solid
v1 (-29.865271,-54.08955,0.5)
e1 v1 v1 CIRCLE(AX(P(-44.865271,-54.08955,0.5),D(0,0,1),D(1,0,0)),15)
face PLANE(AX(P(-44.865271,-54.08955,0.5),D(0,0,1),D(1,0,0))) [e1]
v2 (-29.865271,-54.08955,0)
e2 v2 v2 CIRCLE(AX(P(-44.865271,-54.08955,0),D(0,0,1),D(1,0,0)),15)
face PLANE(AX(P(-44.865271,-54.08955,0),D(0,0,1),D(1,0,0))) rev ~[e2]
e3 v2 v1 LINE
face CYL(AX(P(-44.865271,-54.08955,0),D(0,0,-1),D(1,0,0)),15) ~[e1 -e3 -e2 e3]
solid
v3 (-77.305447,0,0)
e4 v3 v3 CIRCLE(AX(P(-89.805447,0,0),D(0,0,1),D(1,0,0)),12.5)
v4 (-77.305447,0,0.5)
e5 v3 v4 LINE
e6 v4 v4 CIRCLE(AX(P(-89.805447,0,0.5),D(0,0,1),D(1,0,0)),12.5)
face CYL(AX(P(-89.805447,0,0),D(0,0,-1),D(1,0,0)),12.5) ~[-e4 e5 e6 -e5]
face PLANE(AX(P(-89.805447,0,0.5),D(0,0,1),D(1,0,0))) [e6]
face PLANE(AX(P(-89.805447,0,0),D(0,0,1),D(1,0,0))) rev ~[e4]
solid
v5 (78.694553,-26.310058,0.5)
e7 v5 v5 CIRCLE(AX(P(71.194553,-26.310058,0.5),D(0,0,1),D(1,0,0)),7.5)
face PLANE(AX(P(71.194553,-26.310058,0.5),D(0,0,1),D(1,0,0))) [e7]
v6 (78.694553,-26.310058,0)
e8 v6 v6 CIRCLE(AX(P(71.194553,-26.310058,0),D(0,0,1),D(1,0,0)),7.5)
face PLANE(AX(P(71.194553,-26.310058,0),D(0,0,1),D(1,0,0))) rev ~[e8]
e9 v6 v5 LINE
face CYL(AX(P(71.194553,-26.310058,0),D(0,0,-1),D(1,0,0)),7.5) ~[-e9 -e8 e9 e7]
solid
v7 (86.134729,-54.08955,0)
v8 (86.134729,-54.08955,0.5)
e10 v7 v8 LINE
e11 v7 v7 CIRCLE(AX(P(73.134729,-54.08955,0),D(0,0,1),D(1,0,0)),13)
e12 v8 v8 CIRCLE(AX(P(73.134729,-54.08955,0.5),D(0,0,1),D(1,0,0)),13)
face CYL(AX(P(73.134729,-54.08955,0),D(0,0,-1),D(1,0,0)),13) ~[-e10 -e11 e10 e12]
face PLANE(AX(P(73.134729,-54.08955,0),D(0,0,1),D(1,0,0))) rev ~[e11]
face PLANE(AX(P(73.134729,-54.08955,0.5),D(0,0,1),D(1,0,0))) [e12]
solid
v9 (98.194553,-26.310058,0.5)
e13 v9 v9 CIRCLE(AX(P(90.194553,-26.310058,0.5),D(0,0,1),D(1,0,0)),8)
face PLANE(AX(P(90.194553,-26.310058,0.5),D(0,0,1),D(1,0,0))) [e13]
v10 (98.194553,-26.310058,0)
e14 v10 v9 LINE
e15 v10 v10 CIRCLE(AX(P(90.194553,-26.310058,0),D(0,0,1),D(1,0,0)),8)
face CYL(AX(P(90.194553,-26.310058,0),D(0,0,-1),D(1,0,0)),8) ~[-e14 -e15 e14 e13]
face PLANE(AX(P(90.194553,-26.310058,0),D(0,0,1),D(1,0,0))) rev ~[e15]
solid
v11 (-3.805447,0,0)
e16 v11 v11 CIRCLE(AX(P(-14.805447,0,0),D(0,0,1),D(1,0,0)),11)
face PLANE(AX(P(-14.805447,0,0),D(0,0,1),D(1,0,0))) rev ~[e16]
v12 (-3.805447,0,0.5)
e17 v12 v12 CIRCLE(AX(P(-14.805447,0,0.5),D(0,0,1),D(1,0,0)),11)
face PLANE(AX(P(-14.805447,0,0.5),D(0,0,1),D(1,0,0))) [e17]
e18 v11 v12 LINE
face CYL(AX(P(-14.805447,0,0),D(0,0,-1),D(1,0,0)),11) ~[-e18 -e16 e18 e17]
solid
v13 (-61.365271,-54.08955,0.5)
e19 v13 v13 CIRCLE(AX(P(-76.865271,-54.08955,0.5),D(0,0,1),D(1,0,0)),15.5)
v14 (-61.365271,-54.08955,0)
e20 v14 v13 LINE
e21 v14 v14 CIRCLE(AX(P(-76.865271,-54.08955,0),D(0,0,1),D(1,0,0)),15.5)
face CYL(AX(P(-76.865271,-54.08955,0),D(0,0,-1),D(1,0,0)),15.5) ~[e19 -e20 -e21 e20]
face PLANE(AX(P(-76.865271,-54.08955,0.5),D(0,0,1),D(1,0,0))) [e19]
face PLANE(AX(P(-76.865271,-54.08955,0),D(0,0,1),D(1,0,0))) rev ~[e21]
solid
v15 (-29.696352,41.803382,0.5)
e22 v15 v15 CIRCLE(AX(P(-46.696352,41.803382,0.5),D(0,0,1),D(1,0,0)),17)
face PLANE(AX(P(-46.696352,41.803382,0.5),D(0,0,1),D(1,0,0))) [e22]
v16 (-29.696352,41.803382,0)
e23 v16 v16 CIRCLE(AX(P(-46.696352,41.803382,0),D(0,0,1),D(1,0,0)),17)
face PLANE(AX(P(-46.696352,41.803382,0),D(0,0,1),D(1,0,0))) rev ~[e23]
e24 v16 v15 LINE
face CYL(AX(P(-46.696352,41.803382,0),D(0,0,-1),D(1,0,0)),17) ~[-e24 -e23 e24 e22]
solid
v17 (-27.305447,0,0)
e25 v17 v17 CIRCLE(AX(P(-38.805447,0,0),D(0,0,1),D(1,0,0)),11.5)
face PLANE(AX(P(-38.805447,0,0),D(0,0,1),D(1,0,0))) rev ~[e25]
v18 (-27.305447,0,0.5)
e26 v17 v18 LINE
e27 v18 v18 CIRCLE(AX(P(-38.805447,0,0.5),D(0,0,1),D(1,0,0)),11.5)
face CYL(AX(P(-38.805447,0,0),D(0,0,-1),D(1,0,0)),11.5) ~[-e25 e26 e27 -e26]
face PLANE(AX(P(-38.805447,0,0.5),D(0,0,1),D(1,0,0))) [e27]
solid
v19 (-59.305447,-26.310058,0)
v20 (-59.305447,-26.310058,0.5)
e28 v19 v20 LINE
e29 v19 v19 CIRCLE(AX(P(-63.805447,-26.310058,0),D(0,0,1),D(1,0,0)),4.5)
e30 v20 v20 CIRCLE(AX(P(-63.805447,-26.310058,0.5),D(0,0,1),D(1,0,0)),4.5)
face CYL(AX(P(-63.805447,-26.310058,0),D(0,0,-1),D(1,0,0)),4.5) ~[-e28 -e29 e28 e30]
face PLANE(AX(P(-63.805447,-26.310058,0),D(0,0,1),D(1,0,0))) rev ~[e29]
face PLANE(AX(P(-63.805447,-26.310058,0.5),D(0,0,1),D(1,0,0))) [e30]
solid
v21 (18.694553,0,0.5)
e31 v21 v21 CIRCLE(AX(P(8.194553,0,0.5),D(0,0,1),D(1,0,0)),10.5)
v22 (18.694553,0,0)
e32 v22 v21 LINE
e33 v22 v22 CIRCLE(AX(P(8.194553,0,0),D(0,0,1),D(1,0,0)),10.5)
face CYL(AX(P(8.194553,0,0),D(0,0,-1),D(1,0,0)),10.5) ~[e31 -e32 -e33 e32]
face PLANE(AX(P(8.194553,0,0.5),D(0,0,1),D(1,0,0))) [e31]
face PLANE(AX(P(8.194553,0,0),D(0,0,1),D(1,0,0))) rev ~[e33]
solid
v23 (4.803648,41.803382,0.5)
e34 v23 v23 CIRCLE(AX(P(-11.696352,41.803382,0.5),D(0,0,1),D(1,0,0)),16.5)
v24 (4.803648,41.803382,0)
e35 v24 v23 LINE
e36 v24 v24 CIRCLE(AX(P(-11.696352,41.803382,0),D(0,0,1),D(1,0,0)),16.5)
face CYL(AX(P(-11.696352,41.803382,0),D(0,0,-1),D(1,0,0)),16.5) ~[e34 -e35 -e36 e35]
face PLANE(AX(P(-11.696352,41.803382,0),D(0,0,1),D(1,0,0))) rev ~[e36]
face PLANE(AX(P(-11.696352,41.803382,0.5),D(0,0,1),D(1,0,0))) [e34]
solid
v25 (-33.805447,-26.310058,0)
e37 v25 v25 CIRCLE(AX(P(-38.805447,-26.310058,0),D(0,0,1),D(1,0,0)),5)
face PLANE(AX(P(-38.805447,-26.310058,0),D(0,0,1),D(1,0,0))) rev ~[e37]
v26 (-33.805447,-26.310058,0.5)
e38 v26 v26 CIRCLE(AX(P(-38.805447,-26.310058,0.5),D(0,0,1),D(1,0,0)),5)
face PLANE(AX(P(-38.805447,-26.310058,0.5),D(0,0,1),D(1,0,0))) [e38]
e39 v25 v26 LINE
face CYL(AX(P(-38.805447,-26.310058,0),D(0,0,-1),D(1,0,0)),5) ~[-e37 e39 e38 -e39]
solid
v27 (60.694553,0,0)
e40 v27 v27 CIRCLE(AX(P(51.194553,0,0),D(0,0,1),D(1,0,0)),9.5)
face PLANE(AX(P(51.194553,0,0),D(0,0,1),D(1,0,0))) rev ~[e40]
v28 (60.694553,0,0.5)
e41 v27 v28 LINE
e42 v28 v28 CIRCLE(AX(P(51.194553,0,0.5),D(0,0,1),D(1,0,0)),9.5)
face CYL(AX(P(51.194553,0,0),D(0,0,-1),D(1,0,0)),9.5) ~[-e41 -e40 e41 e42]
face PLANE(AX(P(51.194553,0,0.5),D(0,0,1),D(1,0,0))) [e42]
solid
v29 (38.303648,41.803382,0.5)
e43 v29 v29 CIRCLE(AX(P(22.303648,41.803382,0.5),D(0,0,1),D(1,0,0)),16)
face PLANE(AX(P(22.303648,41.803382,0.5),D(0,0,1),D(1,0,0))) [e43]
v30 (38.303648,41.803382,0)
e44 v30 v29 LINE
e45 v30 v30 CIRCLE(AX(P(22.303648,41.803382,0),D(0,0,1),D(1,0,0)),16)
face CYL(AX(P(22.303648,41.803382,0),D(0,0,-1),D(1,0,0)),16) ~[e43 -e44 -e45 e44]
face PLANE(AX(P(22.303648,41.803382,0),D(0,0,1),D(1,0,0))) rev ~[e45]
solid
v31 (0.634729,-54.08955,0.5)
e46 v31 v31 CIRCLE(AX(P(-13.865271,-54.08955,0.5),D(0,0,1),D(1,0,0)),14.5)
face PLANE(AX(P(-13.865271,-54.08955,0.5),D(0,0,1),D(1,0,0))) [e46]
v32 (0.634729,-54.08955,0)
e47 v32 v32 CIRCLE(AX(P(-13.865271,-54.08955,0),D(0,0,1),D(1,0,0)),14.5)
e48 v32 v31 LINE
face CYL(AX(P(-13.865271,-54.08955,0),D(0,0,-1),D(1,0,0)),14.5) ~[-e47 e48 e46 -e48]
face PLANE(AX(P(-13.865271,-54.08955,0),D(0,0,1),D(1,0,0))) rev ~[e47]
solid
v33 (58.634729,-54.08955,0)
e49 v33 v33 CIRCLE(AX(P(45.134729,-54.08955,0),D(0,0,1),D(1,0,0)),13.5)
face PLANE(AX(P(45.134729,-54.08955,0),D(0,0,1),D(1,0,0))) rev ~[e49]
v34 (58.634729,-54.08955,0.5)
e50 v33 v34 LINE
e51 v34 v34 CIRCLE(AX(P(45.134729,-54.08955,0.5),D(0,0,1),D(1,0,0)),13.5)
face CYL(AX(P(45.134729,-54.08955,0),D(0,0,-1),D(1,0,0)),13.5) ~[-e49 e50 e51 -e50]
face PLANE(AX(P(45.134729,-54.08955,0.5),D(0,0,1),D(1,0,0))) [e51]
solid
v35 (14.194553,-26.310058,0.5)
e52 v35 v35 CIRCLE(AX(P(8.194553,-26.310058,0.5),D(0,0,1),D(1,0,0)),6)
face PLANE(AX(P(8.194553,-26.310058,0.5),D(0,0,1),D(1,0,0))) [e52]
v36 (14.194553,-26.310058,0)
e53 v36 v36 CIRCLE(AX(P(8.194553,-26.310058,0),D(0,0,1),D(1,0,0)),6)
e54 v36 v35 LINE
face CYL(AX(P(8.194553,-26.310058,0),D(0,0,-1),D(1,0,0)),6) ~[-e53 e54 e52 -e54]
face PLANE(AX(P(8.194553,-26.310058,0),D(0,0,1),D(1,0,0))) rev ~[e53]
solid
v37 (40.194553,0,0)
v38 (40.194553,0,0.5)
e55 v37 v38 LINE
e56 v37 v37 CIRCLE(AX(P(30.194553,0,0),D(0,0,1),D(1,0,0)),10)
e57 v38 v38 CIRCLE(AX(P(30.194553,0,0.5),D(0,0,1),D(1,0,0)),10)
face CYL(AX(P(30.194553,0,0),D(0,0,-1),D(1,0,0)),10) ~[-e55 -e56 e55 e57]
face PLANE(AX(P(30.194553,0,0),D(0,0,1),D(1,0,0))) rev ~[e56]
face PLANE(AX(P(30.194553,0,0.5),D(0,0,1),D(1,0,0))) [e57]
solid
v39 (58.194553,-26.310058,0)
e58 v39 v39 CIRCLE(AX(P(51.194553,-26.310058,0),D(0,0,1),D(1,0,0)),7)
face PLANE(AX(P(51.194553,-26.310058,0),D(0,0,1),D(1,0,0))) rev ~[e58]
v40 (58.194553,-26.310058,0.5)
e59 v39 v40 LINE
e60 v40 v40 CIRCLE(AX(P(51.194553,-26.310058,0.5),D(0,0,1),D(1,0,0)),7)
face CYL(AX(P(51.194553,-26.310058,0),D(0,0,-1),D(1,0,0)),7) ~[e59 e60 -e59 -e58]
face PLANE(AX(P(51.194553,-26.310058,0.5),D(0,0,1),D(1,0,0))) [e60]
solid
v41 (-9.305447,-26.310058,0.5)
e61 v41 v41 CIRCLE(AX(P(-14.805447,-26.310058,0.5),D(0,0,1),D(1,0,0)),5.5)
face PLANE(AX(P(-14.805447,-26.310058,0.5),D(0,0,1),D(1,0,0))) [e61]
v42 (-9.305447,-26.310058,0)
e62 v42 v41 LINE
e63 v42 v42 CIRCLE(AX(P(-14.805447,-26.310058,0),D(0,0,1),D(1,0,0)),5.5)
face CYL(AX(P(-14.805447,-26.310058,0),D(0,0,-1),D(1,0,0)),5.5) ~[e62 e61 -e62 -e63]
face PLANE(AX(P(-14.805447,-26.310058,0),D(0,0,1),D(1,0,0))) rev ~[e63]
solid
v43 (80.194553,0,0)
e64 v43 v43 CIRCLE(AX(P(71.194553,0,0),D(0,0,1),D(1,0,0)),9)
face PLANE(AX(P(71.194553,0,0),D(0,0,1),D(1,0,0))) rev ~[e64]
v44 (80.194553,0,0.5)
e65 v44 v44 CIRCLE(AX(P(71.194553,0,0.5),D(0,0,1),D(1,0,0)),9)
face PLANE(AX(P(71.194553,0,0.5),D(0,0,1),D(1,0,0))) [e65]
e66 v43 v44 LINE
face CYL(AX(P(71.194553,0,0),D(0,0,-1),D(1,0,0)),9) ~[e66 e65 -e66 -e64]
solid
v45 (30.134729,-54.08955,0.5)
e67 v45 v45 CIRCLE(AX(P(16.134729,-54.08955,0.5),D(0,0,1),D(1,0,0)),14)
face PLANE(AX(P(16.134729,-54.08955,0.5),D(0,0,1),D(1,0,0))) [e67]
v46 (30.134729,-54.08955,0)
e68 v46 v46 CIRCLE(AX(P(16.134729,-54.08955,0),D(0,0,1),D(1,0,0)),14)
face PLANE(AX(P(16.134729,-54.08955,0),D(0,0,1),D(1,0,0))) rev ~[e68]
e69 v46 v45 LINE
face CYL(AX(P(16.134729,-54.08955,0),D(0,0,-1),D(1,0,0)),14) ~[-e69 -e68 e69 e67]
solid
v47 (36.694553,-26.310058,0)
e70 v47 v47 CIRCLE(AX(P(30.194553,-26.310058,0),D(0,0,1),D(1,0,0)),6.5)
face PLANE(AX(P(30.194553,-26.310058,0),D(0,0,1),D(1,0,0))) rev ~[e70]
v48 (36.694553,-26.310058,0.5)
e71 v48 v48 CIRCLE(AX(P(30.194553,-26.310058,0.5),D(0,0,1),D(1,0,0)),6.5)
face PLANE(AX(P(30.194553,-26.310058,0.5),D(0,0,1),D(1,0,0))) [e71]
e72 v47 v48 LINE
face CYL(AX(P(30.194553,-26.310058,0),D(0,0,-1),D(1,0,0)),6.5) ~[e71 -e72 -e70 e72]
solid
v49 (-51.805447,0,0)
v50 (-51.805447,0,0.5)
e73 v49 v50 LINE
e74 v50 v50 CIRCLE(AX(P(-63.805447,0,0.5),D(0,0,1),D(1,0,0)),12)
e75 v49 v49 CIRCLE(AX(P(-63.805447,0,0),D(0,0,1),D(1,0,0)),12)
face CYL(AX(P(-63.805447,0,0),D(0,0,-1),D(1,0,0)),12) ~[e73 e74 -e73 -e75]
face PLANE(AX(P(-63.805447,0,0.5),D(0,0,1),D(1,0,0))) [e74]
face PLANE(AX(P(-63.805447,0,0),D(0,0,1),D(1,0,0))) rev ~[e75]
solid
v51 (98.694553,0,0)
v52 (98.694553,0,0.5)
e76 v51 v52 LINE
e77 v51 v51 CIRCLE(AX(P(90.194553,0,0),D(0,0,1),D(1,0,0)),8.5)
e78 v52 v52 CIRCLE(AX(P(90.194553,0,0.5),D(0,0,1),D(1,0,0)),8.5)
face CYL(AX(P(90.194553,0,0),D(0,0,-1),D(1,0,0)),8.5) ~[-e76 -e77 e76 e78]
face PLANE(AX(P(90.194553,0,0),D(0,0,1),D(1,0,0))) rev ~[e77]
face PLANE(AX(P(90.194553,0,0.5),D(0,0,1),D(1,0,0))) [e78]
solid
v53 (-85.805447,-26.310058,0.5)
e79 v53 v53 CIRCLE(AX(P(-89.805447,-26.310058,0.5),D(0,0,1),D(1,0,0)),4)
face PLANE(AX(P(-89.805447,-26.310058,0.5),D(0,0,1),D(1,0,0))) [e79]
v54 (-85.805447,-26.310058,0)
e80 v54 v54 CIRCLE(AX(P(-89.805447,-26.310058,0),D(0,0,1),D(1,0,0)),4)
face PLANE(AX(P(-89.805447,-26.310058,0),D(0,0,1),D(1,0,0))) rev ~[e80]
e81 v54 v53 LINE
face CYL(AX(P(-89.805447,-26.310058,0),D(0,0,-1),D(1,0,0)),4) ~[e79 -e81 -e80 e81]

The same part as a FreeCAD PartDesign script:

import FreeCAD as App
import Part
import Sketcher
from FreeCAD import Vector

doc = App.newDocument("Part")
body = doc.addObject("PartDesign::Body", "Body")
body.AllowCompound = True

# Sketch on XY plane
sketch1 = doc.addObject("Sketcher::SketchObject", "Sketch")
body.addObject(sketch1)
sketch1.AttachmentSupport = (doc.XY_Plane, [""])
sketch1.MapMode = "FlatFace"
sketch1.addGeometry([
    Part.Circle(Vector(8.2, -26.3, 0), Vector(0, 0, 1), 6),  # 0
    Part.Circle(Vector(71.2, -26.3, 0), Vector(0, 0, 1), 7.5),  # 1
    Part.Circle(Vector(51.2, -26.3, 0), Vector(0, 0, 1), 7),  # 2
    Part.Circle(Vector(30.2, -26.3, 0), Vector(0, 0, 1), 6.5),  # 3
    Part.Circle(Vector(90.2, -26.3, 0), Vector(0, 0, 1), 8),  # 4
    Part.Circle(Vector(-89.8, 0, 0), Vector(0, 0, 1), 12.5),  # 5
    Part.Circle(Vector(-63.8, 0, 0), Vector(0, 0, 1), 12),  # 6
    Part.Circle(Vector(-38.8, 0, 0), Vector(0, 0, 1), 11.5),  # 7
    Part.Circle(Vector(-14.8, 0, 0), Vector(0, 0, 1), 11),  # 8
    Part.Circle(Vector(8.2, 0, 0), Vector(0, 0, 1), 10.5),  # 9
    Part.Circle(Vector(30.2, 0, 0), Vector(0, 0, 1), 10),  # 10
    Part.Circle(Vector(71.2, 0, 0), Vector(0, 0, 1), 9),  # 11
    Part.Circle(Vector(51.2, 0, 0), Vector(0, 0, 1), 9.5),  # 12
    Part.Circle(Vector(90.2, 0, 0), Vector(0, 0, 1), 8.5),  # 13
    Part.Circle(Vector(-89.8, -26.3, 0), Vector(0, 0, 1), 4),  # 14
    Part.Circle(Vector(-63.8, -26.3, 0), Vector(0, 0, 1), 4.5),  # 15
    Part.Circle(Vector(-38.8, -26.3, 0), Vector(0, 0, 1), 5),  # 16
    Part.Circle(Vector(-14.8, -26.3, 0), Vector(0, 0, 1), 5.5),  # 17
    Part.Circle(Vector(-46.7, 41.8, 0), Vector(0, 0, 1), 17),  # 18
    Part.Circle(Vector(-11.7, 41.8, 0), Vector(0, 0, 1), 16.5),  # 19
    Part.Circle(Vector(22.3, 41.8, 0), Vector(0, 0, 1), 16),  # 20
    Part.Circle(Vector(-76.9, -54.1, 0), Vector(0, 0, 1), 15.5),  # 21
    Part.Circle(Vector(-44.9, -54.1, 0), Vector(0, 0, 1), 15),  # 22
    Part.Circle(Vector(-13.9, -54.1, 0), Vector(0, 0, 1), 14.5),  # 23
    Part.Circle(Vector(16.1, -54.1, 0), Vector(0, 0, 1), 14),  # 24
    Part.Circle(Vector(73.1, -54.1, 0), Vector(0, 0, 1), 13),  # 25
    Part.Circle(Vector(45.1, -54.1, 0), Vector(0, 0, 1), 13.5),  # 26
], False)
sketch1.addConstraint([
    Sketcher.Constraint("PointOnObject", 5, 3, -1),
    Sketcher.Constraint("PointOnObject", 6, 3, -1),
    Sketcher.Constraint("PointOnObject", 7, 3, -1),
    Sketcher.Constraint("PointOnObject", 8, 3, -1),
    Sketcher.Constraint("PointOnObject", 9, 3, -1),
    Sketcher.Constraint("PointOnObject", 10, 3, -1),
    Sketcher.Constraint("PointOnObject", 11, 3, -1),
    Sketcher.Constraint("PointOnObject", 12, 3, -1),
    Sketcher.Constraint("PointOnObject", 13, 3, -1),
    Sketcher.Constraint("Horizontal", 0, 3, 1, 3),
    Sketcher.Constraint("Horizontal", 1, 3, 2, 3),
    Sketcher.Constraint("Horizontal", 2, 3, 3, 3),
    Sketcher.Constraint("Horizontal", 3, 3, 4, 3),
    Sketcher.Constraint("Horizontal", 4, 3, 14, 3),
    Sketcher.Constraint("Horizontal", 14, 3, 15, 3),
    Sketcher.Constraint("Horizontal", 15, 3, 16, 3),
    Sketcher.Constraint("Horizontal", 16, 3, 17, 3),
    Sketcher.Constraint("Horizontal", 18, 3, 19, 3),
    Sketcher.Constraint("Horizontal", 19, 3, 20, 3),
    Sketcher.Constraint("Horizontal", 21, 3, 22, 3),
    Sketcher.Constraint("Horizontal", 22, 3, 23, 3),
    Sketcher.Constraint("Horizontal", 23, 3, 24, 3),
    Sketcher.Constraint("Horizontal", 24, 3, 25, 3),
    Sketcher.Constraint("Horizontal", 25, 3, 26, 3),
    Sketcher.Constraint("Vertical", 0, 3, 9, 3),
    Sketcher.Constraint("Vertical", 3, 3, 10, 3),
    Sketcher.Constraint("Vertical", 1, 3, 11, 3),
    Sketcher.Constraint("Vertical", 2, 3, 12, 3),
    Sketcher.Constraint("Vertical", 4, 3, 13, 3),
    Sketcher.Constraint("Vertical", 5, 3, 14, 3),
    Sketcher.Constraint("Vertical", 6, 3, 15, 3),
    Sketcher.Constraint("Vertical", 7, 3, 16, 3),
    Sketcher.Constraint("Vertical", 8, 3, 17, 3),
    Sketcher.Constraint("Diameter", 0, 12.0),
    Sketcher.Constraint("Diameter", 1, 15.0),
    Sketcher.Constraint("Diameter", 2, 14.0),
    Sketcher.Constraint("Diameter", 3, 13.0),
    Sketcher.Constraint("Diameter", 4, 16.0),
    Sketcher.Constraint("Diameter", 5, 25.0),
    Sketcher.Constraint("Diameter", 6, 24.0),
    Sketcher.Constraint("Diameter", 7, 23.0),
    Sketcher.Constraint("Diameter", 8, 22.0),
    Sketcher.Constraint("Diameter", 9, 21.0),
    Sketcher.Constraint("Diameter", 10, 20.0),
    Sketcher.Constraint("Diameter", 11, 18.0),
    Sketcher.Constraint("Diameter", 12, 19.0),
    Sketcher.Constraint("Diameter", 13, 17.0),
    Sketcher.Constraint("Diameter", 14, 8.0),
    Sketcher.Constraint("Diameter", 15, 9.0),
    Sketcher.Constraint("Diameter", 16, 10.0),
    Sketcher.Constraint("Diameter", 17, 11.0),
    Sketcher.Constraint("Diameter", 18, 34.0),
    Sketcher.Constraint("Diameter", 19, 33.0),
    Sketcher.Constraint("Diameter", 20, 32.0),
    Sketcher.Constraint("Diameter", 21, 31.0),
    Sketcher.Constraint("Diameter", 22, 30.0),
    Sketcher.Constraint("Diameter", 23, 29.0),
    Sketcher.Constraint("Diameter", 24, 28.0),
    Sketcher.Constraint("Diameter", 25, 26.0),
    Sketcher.Constraint("Diameter", 26, 27.0),
    Sketcher.Constraint("DistanceX", 0, 3, 1, 3, 63.0),
    Sketcher.Constraint("DistanceX", 2, 3, 1, 3, 20.0),
    Sketcher.Constraint("DistanceX", 3, 3, 2, 3, 21.0),
    Sketcher.Constraint("DistanceX", 1, 3, 4, 3, 19.0),
    Sketcher.Constraint("DistanceX", 5, 3, 0, 3, 98.0),
    Sketcher.Constraint("DistanceX", 5, 3, 6, 3, 26.0),
    Sketcher.Constraint("DistanceX", 6, 3, 7, 3, 25.0),
    Sketcher.Constraint("DistanceX", 7, 3, 8, 3, 24.0),
    Sketcher.Constraint("DistanceX", 18, 3, 19, 3, 35.0),
    Sketcher.Constraint("DistanceX", 19, 3, 20, 3, 34.0),
    Sketcher.Constraint("DistanceX", 21, 3, 22, 3, 32.0),
    Sketcher.Constraint("DistanceX", 22, 3, 23, 3, 31.0),
    Sketcher.Constraint("DistanceX", 23, 3, 24, 3, 30.0),
    Sketcher.Constraint("DistanceX", 26, 3, 25, 3, 28.0),
    Sketcher.Constraint("DistanceX", 24, 3, 26, 3, 29.0),
    Sketcher.Constraint("DistanceY", 0, 3, -1, 1, 26.310058),
    Sketcher.Constraint("DistanceX", 18, 3, -1, 1, 46.696352),
    Sketcher.Constraint("DistanceX", 21, 3, -1, 1, 76.865271),
    Sketcher.Constraint("DistanceY", 21, 3, -1, 1, 54.08955),
    Sketcher.Constraint("DistanceY", 16, 3, 18, 3, 68.11344),
    Sketcher.Constraint("DistanceX", -1, 1, 0, 3, 8.194553),
])
pad1 = doc.addObject("PartDesign::Pad", "Pad")
body.addObject(pad1)
pad1.Profile = sketch1
pad1.Length = 0.5

doc.recompute()
